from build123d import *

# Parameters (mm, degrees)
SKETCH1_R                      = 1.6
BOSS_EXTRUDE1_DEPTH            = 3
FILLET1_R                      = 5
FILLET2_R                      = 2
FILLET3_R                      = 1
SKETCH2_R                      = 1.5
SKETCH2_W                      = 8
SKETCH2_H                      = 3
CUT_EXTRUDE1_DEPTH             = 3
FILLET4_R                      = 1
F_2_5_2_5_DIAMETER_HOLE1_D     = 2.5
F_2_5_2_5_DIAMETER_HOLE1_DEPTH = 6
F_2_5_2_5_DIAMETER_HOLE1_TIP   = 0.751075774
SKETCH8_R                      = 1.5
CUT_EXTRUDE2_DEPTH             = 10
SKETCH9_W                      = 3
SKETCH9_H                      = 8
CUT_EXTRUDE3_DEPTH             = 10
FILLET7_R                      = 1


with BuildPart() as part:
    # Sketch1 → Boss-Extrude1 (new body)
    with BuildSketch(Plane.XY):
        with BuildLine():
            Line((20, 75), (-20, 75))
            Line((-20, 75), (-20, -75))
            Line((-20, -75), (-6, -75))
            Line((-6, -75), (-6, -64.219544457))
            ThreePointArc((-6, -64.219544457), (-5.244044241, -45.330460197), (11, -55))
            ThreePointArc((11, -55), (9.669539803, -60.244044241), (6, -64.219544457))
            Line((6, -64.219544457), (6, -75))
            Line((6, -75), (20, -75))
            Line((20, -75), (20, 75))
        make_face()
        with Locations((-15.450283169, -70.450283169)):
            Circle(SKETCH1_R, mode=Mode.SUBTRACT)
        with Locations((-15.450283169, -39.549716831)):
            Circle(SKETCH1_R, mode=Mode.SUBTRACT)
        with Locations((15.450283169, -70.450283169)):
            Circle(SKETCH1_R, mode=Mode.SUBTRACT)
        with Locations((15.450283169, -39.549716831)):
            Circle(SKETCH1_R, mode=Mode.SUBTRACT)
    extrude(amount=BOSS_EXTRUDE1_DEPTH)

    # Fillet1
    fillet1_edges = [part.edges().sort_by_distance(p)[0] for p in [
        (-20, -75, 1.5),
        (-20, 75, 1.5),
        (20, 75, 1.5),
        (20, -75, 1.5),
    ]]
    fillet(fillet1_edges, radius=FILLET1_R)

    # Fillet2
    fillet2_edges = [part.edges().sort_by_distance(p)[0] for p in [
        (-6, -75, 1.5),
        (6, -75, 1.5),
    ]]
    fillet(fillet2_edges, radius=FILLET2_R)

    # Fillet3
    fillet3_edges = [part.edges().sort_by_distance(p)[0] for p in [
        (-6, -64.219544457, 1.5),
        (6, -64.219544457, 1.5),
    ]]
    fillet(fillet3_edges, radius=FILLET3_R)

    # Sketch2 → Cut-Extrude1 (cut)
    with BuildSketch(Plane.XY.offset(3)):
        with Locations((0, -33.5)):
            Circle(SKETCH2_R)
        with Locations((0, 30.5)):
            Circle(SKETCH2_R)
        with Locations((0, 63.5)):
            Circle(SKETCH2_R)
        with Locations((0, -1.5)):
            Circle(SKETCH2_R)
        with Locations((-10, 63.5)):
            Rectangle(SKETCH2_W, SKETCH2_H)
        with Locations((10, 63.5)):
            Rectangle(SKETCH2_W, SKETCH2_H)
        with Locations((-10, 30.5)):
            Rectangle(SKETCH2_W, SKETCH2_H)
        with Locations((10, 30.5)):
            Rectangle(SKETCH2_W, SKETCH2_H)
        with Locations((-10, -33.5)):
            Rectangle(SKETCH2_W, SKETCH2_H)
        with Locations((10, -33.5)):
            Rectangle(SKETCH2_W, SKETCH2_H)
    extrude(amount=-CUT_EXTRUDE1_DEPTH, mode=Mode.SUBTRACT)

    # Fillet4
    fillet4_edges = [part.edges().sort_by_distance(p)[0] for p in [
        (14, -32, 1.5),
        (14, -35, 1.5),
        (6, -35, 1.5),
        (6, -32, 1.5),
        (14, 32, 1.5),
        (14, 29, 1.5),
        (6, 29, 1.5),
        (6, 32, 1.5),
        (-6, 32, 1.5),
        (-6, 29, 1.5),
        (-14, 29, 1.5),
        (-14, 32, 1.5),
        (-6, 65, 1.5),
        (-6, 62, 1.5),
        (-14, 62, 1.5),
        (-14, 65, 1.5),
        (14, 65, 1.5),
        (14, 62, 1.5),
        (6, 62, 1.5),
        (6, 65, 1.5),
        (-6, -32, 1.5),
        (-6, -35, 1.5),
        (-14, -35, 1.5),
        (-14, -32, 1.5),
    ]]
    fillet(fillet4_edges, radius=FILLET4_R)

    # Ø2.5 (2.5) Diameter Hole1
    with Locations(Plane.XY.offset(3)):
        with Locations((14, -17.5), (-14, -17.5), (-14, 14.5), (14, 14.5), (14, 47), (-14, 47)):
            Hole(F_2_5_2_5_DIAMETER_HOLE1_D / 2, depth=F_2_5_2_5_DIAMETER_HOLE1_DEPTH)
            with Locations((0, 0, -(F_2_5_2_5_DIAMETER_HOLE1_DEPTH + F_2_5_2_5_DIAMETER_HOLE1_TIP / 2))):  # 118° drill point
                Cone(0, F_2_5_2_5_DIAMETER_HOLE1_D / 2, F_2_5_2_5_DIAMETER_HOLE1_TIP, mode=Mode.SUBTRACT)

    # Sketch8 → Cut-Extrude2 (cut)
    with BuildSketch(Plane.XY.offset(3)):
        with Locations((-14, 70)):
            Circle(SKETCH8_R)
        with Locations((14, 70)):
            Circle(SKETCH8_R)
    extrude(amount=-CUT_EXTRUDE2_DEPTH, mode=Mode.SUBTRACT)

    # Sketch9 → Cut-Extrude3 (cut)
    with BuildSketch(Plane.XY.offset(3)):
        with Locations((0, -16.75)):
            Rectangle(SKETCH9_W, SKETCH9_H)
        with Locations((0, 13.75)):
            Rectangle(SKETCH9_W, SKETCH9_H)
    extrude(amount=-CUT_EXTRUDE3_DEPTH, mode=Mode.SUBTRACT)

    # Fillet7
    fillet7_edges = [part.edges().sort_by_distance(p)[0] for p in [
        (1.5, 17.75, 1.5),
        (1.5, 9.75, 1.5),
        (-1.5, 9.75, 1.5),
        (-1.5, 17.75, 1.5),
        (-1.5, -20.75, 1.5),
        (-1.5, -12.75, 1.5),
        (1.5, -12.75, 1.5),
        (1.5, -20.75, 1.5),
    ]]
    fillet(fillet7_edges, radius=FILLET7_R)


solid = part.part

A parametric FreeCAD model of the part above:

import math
import FreeCAD as App
import Part
import Sketcher

V = App.Vector
Q = App.Units.Quantity


def edges_at(feature, points):
    """Names of the edges that pass closest to the given points."""
    edges = feature.Shape.Edges
    near = lambda p: min(range(len(edges)), key=lambda i: edges[i].distToShape(Part.Vertex(*p))[0])
    return sorted({f"Edge{near(p) + 1}" for p in points})


def add_polygon(sketch, points):
    """Adds a closed chain of lines whose ends are joined by coincident constraints."""
    first, n = sketch.GeometryCount, len(points)
    for a, b in zip(points, points[1:] + points[:1]):
        sketch.addGeometry(Part.LineSegment(App.Vector(*a, 0), App.Vector(*b, 0)), False)
    for i in range(n):
        sketch.addConstraint(Sketcher.Constraint("Coincident", first + i, 2, first + (i + 1) % n, 1))

doc = App.newDocument("Part")
params = doc.addObject("Spreadsheet::Sheet", "Params")
for row, (alias, value) in enumerate([
    ("sketch1_radius", "11 mm"),
    ("sketch1_diameter", "3.2 mm"),
    ("sketch1_width", "40 mm"),
    ("sketch1_width2", "14 mm"),
    ("sketch1_height", "150 mm"),
    ("pad1_length", "3 mm"),
    ("fillet_radius", "5 mm"),
    ("fillet2_radius", "2 mm"),
    ("fillet3_radius", "1 mm"),
    ("sketch2_diameter", "3 mm"),
    ("sketch2_width", "8 mm"),
    ("sketch2_height", "3 mm"),
    ("pocket1_length", "3 mm"),
    ("fillet4_radius", "1 mm"),
    ("sketch3_diameter", "2.5 mm"),
    ("hole_diameter", "2.5 mm"),
    ("hole_depth", "6 mm"),
    ("sketch4_diameter", "3 mm"),
    ("pocket2_length", "10 mm"),
    ("sketch5_width", "3 mm"),
    ("sketch5_height", "8 mm"),
    ("pocket3_length", "10 mm"),
    ("fillet5_radius", "1 mm"),
], start=1):
    params.set(f"A{row}", alias)
    params.set(f"B{row}", "=" + value)
    params.setAlias(f"B{row}", alias)

body = doc.addObject("PartDesign::Body", "Body")

sketch1 = body.newObject("Sketcher::SketchObject", "Sketch")
sketch1.AttachmentSupport = (doc.getObject("XY_Plane"), [""])
sketch1.MapMode = "FlatFace"
sketch1.addGeometry(Part.LineSegment(V(20, 75, 0), V(-20, 75, 0)), False)
sketch1.addGeometry(Part.LineSegment(V(-20, 75, 0), V(-20, -75, 0)), False)
sketch1.addGeometry(Part.LineSegment(V(-20, -75, 0), V(-6, -75, 0)), False)
sketch1.addGeometry(Part.LineSegment(V(-6, -75, 0), V(-6, -64.2, 0)), False)
sketch1.addGeometry(Part.ArcOfCircle(Part.Circle(V(0, -55, 0), V(0, 0, 1), 11), math.radians(0), math.radians(237)), False)
sketch1.addGeometry(Part.ArcOfCircle(Part.Circle(V(0, -55, 0), V(0, 0, 1), 11), math.radians(-57), math.radians(0)), False)
sketch1.addGeometry(Part.LineSegment(V(6, -64.2, 0), V(6, -75, 0)), False)
sketch1.addGeometry(Part.LineSegment(V(6, -75, 0), V(20, -75, 0)), False)
sketch1.addGeometry(Part.LineSegment(V(20, -75, 0), V(20, 75, 0)), False)
sketch1.addGeometry(Part.Circle(V(-15.5, -70.5, 0), V(0, 0, 1), 1.6), False)
sketch1.addGeometry(Part.Circle(V(15.5, -70.5, 0), V(0, 0, 1), 1.6), False)
sketch1.addGeometry(Part.Circle(V(-15.5, -39.5, 0), V(0, 0, 1), 1.6), False)
sketch1.addGeometry(Part.Circle(V(15.5, -39.5, 0), V(0, 0, 1), 1.6), False)
sketch1.addConstraint(Sketcher.Constraint("Coincident", 0, 2, 1, 1))
sketch1.addConstraint(Sketcher.Constraint("Coincident", 1, 2, 2, 1))
sketch1.addConstraint(Sketcher.Constraint("Coincident", 2, 2, 3, 1))
sketch1.addConstraint(Sketcher.Constraint("Coincident", 3, 2, 4, 2))
sketch1.addConstraint(Sketcher.Constraint("Tangent", 4, 1, 5, 2))
sketch1.addConstraint(Sketcher.Constraint("Coincident", 5, 1, 6, 1))
sketch1.addConstraint(Sketcher.Constraint("Coincident", 6, 2, 7, 1))
sketch1.addConstraint(Sketcher.Constraint("Coincident", 7, 2, 8, 1))
sketch1.addConstraint(Sketcher.Constraint("Coincident", 8, 2, 0, 1))
sketch1.addConstraint(Sketcher.Constraint("Horizontal", 0))
sketch1.addConstraint(Sketcher.Constraint("Vertical", 1))
sketch1.addConstraint(Sketcher.Constraint("Horizontal", 2))
sketch1.addConstraint(Sketcher.Constraint("Vertical", 3))
sketch1.addConstraint(Sketcher.Constraint("Vertical", 6))
sketch1.addConstraint(Sketcher.Constraint("Horizontal", 7))
sketch1.addConstraint(Sketcher.Constraint("Vertical", 8))
sketch1.addConstraint(Sketcher.Constraint("Equal", 4, 5))
sketch1.addConstraint(Sketcher.Constraint("Equal", 9, 10))
sketch1.addConstraint(Sketcher.Constraint("Equal", 10, 11))
sketch1.addConstraint(Sketcher.Constraint("Equal", 11, 12))
sketch1.addConstraint(Sketcher.Constraint("Symmetric", 0, 2, 7, 2, -1, 1))
sketch1.addConstraint(Sketcher.Constraint("Symmetric", 9, 3, 10, 3, -2))
sketch1.addConstraint(Sketcher.Constraint("Symmetric", 11, 3, 12, 3, -2))
sketch1.addConstraint(Sketcher.Constraint("Symmetric", 3, 2, 5, 1, -2))
sketch1.addConstraint(Sketcher.Constraint("Horizontal", 5, 3, 4, 1))
sketch1.addConstraint(Sketcher.Constraint("Horizontal", 2, 2, 6, 2))
sketch1.addConstraint(Sketcher.Constraint("Vertical", 9, 3, 11, 3))
sketch1.addConstraint(Sketcher.Constraint("Radius", 4, Q("11 mm")))
sketch1.addConstraint(Sketcher.Constraint("Diameter", 9, Q("3.2 mm")))
sketch1.addConstraint(Sketcher.Constraint("DistanceX", 0, 2, 0, 1, Q("40 mm")))
sketch1.addConstraint(Sketcher.Constraint("DistanceX", 2, 1, 2, 2, Q("14 mm")))
sketch1.addConstraint(Sketcher.Constraint("DistanceY", 1, 2, 1, 1, Q("150 mm")))
sketch1.addConstraint(Sketcher.Constraint("DistanceY", 4, 3, -1, 1, Q("55 mm")))
sketch1.addConstraint(Sketcher.Constraint("DistanceY", 9, 3, 3, 2, Q("6.230739 mm")))
sketch1.addConstraint(Sketcher.Constraint("DistanceX", 9, 3, -1, 1, Q("15.450283 mm")))
sketch1.addConstraint(Sketcher.Constraint("DistanceY", 11, 3, -1, 1, Q("39.549717 mm")))
sketch1.setExpression("Constraints[27]", "Params.sketch1_radius")
sketch1.setExpression("Constraints[28]", "Params.sketch1_diameter")
sketch1.setExpression("Constraints[29]", "Params.sketch1_width")
sketch1.setExpression("Constraints[30]", "Params.sketch1_width2")
sketch1.setExpression("Constraints[31]", "Params.sketch1_height")
pad1 = body.newObject("PartDesign::Pad", "Pad")
pad1.Profile = sketch1
pad1.setExpression("Length", "Params.pad1_length")
doc.recompute()

fillet = body.newObject("PartDesign::Fillet", "Fillet")
fillet.Base = (pad1, edges_at(pad1, [
    (-20, -75, 1.5),
    (-20, 75, 1.5),
    (20, 75, 1.5),
    (20, -75, 1.5),
]))
fillet.setExpression("Radius", "Params.fillet_radius")
doc.recompute()

fillet2 = body.newObject("PartDesign::Fillet", "Fillet001")
fillet2.Base = (fillet, edges_at(fillet, [(-6, -75, 1.5), (6, -75, 1.5)]))
fillet2.setExpression("Radius", "Params.fillet2_radius")
doc.recompute()

fillet3 = body.newObject("PartDesign::Fillet", "Fillet002")
fillet3.Base = (fillet2, edges_at(fillet2, [(-6, -64.22, 1.5), (6, -64.22, 1.5)]))
fillet3.setExpression("Radius", "Params.fillet3_radius")

sketch2 = body.newObject("Sketcher::SketchObject", "Sketch001")
sketch2.AttachmentSupport = (doc.getObject("XY_Plane"), [""])
sketch2.MapMode = "FlatFace"
sketch2.AttachmentOffset = App.Placement(V(0, 0, 3), App.Rotation())
sketch2.addGeometry(Part.Circle(V(0, -33.5, 0), V(0, 0, 1), 1.5), False)
sketch2.addGeometry(Part.Circle(V(0, 30.5, 0), V(0, 0, 1), 1.5), False)
sketch2.addGeometry(Part.Circle(V(0, 63.5, 0), V(0, 0, 1), 1.5), False)
sketch2.addGeometry(Part.Circle(V(0, -1.5, 0), V(0, 0, 1), 1.5), False)
add_polygon(sketch2, [(-14, 65), (-14, 62), (-6, 62), (-6, 65)])
add_polygon(sketch2, [(6, 65), (6, 62), (14, 62), (14, 65)])
add_polygon(sketch2, [(-14, 32), (-14, 29), (-6, 29), (-6, 32)])
add_polygon(sketch2, [(6, 32), (6, 29), (14, 29), (14, 32)])
add_polygon(sketch2, [(-14, -32), (-14, -35), (-6, -35), (-6, -32)])
add_polygon(sketch2, [(6, -32), (6, -35), (14, -35), (14, -32)])
sketch2.addConstraint(Sketcher.Constraint("Vertical", 4))
sketch2.addConstraint(Sketcher.Constraint("Horizontal", 5))
sketch2.addConstraint(Sketcher.Constraint("Vertical", 6))
sketch2.addConstraint(Sketcher.Constraint("Horizontal", 7))
sketch2.addConstraint(Sketcher.Constraint("Vertical", 8))
sketch2.addConstraint(Sketcher.Constraint("Horizontal", 9))
sketch2.addConstraint(Sketcher.Constraint("Vertical", 10))
sketch2.addConstraint(Sketcher.Constraint("Horizontal", 11))
sketch2.addConstraint(Sketcher.Constraint("Vertical", 12))
sketch2.addConstraint(Sketcher.Constraint("Horizontal", 13))
sketch2.addConstraint(Sketcher.Constraint("Vertical", 14))
sketch2.addConstraint(Sketcher.Constraint("Horizontal", 15))
sketch2.addConstraint(Sketcher.Constraint("Vertical", 16))
sketch2.addConstraint(Sketcher.Constraint("Horizontal", 17))
sketch2.addConstraint(Sketcher.Constraint("Vertical", 18))
sketch2.addConstraint(Sketcher.Constraint("Horizontal", 19))
sketch2.addConstraint(Sketcher.Constraint("Vertical", 20))
sketch2.addConstraint(Sketcher.Constraint("Horizontal", 21))
sketch2.addConstraint(Sketcher.Constraint("Vertical", 22))
sketch2.addConstraint(Sketcher.Constraint("Horizontal", 23))
sketch2.addConstraint(Sketcher.Constraint("Vertical", 24))
sketch2.addConstraint(Sketcher.Constraint("Horizontal", 25))
sketch2.addConstraint(Sketcher.Constraint("Vertical", 26))
sketch2.addConstraint(Sketcher.Constraint("Horizontal", 27))
sketch2.addConstraint(Sketcher.Constraint("Equal", 0, 1))
sketch2.addConstraint(Sketcher.Constraint("Equal", 1, 2))
sketch2.addConstraint(Sketcher.Constraint("Equal", 2, 3))
sketch2.addConstraint(Sketcher.Constraint("Symmetric", 19, 2, 22, 2, -1, 1))
sketch2.addConstraint(Sketcher.Constraint("Symmetric", 15, 2, 26, 2, -1, 1))
sketch2.addConstraint(Sketcher.Constraint("Symmetric", 5, 2, 8, 2, -2))
sketch2.addConstraint(Sketcher.Constraint("Symmetric", 7, 2, 10, 2, -2))
sketch2.addConstraint(Sketcher.Constraint("Symmetric", 13, 2, 16, 2, -2))
sketch2.addConstraint(Sketcher.Constraint("Symmetric", 15, 2, 18, 2, -2))
sketch2.addConstraint(Sketcher.Constraint("Symmetric", 21, 2, 24, 2, -2))
sketch2.addConstraint(Sketcher.Constraint("PointOnObject", 0, 3, -2))
sketch2.addConstraint(Sketcher.Constraint("PointOnObject", 1, 3, -2))
sketch2.addConstraint(Sketcher.Constraint("PointOnObject", 2, 3, -2))
sketch2.addConstraint(Sketcher.Constraint("PointOnObject", 3, 3, -2))
sketch2.addConstraint(Sketcher.Constraint("Vertical", 7, 2, 12, 2))
sketch2.addConstraint(Sketcher.Constraint("Vertical", 6, 2, 13, 2))
sketch2.addConstraint(Sketcher.Constraint("Vertical", 15, 2, 20, 2))
sketch2.addConstraint(Sketcher.Constraint("Equal", 10, 12))
sketch2.addConstraint(Sketcher.Constraint("Equal", 18, 20))
sketch2.addConstraint(Sketcher.Constraint("Diameter", 0, Q("3 mm")))
sketch2.addConstraint(Sketcher.Constraint("DistanceX", 5, 1, 5, 2, Q("8 mm")))
sketch2.addConstraint(Sketcher.Constraint("DistanceY", 4, 2, 4, 1, Q("3 mm")))
sketch2.addConstraint(Sketcher.Constraint("DistanceX", 4, 2, -1, 1, Q("14 mm")))
sketch2.addConstraint(Sketcher.Constraint("DistanceY", -1, 1, 4, 2, Q("62 mm")))
sketch2.addConstraint(Sketcher.Constraint("DistanceY", -1, 1, 12, 2, Q("29 mm")))
sketch2.addConstraint(Sketcher.Constraint("DistanceY", 0, 3, 1, 3, Q("64 mm")))
sketch2.addConstraint(Sketcher.Constraint("DistanceY", 1, 3, 2, 3, Q("33 mm")))
sketch2.addConstraint(Sketcher.Constraint("DistanceY", 0, 3, 3, 3, Q("32 mm")))
sketch2.addConstraint(Sketcher.Constraint("DistanceY", 0, 3, -1, 1, Q("33.5 mm")))
sketch2.setExpression("Constraints[67]", "Params.sketch2_diameter")
sketch2.setExpression("Constraints[68]", "Params.sketch2_width")
sketch2.setExpression("Constraints[69]", "Params.sketch2_height")
pocket1 = body.newObject("PartDesign::Pocket", "Pocket")
pocket1.Profile = sketch2
pocket1.setExpression("Length", "Params.pocket1_length")
doc.recompute()

fillet4 = body.newObject("PartDesign::Fillet", "Fillet003")
fillet4.Base = (pocket1, edges_at(pocket1, [
    (14, -32, 1.5),
    (14, -35, 1.5),
    (6, -35, 1.5),
    (6, -32, 1.5),
    (14, 32, 1.5),
    (14, 29, 1.5),
    (6, 29, 1.5),
    (6, 32, 1.5),
    (-6, 32, 1.5),
    (-6, 29, 1.5),
    (-14, 29, 1.5),
    (-14, 32, 1.5),
    (-6, 65, 1.5),
    (-6, 62, 1.5),
    (-14, 62, 1.5),
    (-14, 65, 1.5),
    (14, 65, 1.5),
    (14, 62, 1.5),
    (6, 62, 1.5),
    (6, 65, 1.5),
    (-6, -32, 1.5),
    (-6, -35, 1.5),
    (-14, -35, 1.5),
    (-14, -32, 1.5),
]))
fillet4.setExpression("Radius", "Params.fillet4_radius")

sketch3 = body.newObject("Sketcher::SketchObject", "Sketch002")
sketch3.AttachmentSupport = (doc.getObject("XY_Plane"), [""])
sketch3.MapMode = "FlatFace"
sketch3.AttachmentOffset = App.Placement(V(0, 0, 3), App.Rotation())
sketch3.addGeometry(Part.Circle(V(14, -17.5, 0), V(0, 0, 1), 1.2), False)
sketch3.addGeometry(Part.Circle(V(-14, -17.5, 0), V(0, 0, 1), 1.2), False)
sketch3.addGeometry(Part.Circle(V(-14, 14.5, 0), V(0, 0, 1), 1.2), False)
sketch3.addGeometry(Part.Circle(V(14, 14.5, 0), V(0, 0, 1), 1.2), False)
sketch3.addGeometry(Part.Circle(V(14, 47, 0), V(0, 0, 1), 1.2), False)
sketch3.addGeometry(Part.Circle(V(-14, 47, 0), V(0, 0, 1), 1.2), False)
sketch3.addConstraint(Sketcher.Constraint("Equal", 0, 1))
sketch3.addConstraint(Sketcher.Constraint("Equal", 1, 2))
sketch3.addConstraint(Sketcher.Constraint("Equal", 2, 3))
sketch3.addConstraint(Sketcher.Constraint("Equal", 3, 4))
sketch3.addConstraint(Sketcher.Constraint("Equal", 4, 5))
sketch3.addConstraint(Sketcher.Constraint("Symmetric", 0, 3, 1, 3, -2))
sketch3.addConstraint(Sketcher.Constraint("Symmetric", 2, 3, 3, 3, -2))
sketch3.addConstraint(Sketcher.Constraint("Symmetric", 4, 3, 5, 3, -2))
sketch3.addConstraint(Sketcher.Constraint("Vertical", 1, 3, 2, 3))
sketch3.addConstraint(Sketcher.Constraint("Vertical", 3, 3, 4, 3))
sketch3.addConstraint(Sketcher.Constraint("Diameter", 0, Q("2.5 mm")))
sketch3.addConstraint(Sketcher.Constraint("DistanceX", -1, 1, 0, 3, Q("14 mm")))
sketch3.addConstraint(Sketcher.Constraint("DistanceY", -1, 1, 4, 3, Q("47 mm")))
sketch3.addConstraint(Sketcher.Constraint("DistanceY", 1, 3, 2, 3, Q("32 mm")))
sketch3.addConstraint(Sketcher.Constraint("DistanceY", 0, 3, -1, 1, Q("17.5 mm")))
sketch3.setExpression("Constraints[10]", "Params.sketch3_diameter")
doc.recompute()
hole = body.newObject("PartDesign::Hole", "Hole")
hole.Profile = sketch3
hole.ThreadType = "None"
hole.setExpression("Diameter", "Params.hole_diameter")
hole.DepthType = "Dimension"
hole.setExpression("Depth", "Params.hole_depth")
hole.DrillPoint = "Angled"
hole.DrillPointAngle = 118

sketch4 = body.newObject("Sketcher::SketchObject", "Sketch003")
sketch4.AttachmentSupport = (doc.getObject("XY_Plane"), [""])
sketch4.MapMode = "FlatFace"
sketch4.AttachmentOffset = App.Placement(V(0, 0, 3), App.Rotation())
sketch4.addGeometry(Part.Circle(V(-14, 70, 0), V(0, 0, 1), 1.5), False)
sketch4.addGeometry(Part.Circle(V(14, 70, 0), V(0, 0, 1), 1.5), False)
sketch4.addConstraint(Sketcher.Constraint("Equal", 0, 1))
sketch4.addConstraint(Sketcher.Constraint("Symmetric", 0, 3, 1, 3, -2))
sketch4.addConstraint(Sketcher.Constraint("Diameter", 0, Q("3 mm")))
sketch4.addConstraint(Sketcher.Constraint("DistanceX", 0, 3, -1, 1, Q("14 mm")))
sketch4.addConstraint(Sketcher.Constraint("DistanceY", -1, 1, 0, 3, Q("70 mm")))
sketch4.setExpression("Constraints[2]", "Params.sketch4_diameter")
pocket2 = body.newObject("PartDesign::Pocket", "Pocket001")
pocket2.Profile = sketch4
pocket2.setExpression("Length", "Params.pocket2_length")

sketch5 = body.newObject("Sketcher::SketchObject", "Sketch004")
sketch5.AttachmentSupport = (doc.getObject("XY_Plane"), [""])
sketch5.MapMode = "FlatFace"
sketch5.AttachmentOffset = App.Placement(V(0, 0, 3), App.Rotation())
add_polygon(sketch5, [(-1.5, -12.8), (-1.5, -20.8), (1.5, -20.8), (1.5, -12.8)])
add_polygon(sketch5, [(-1.5, 17.8), (-1.5, 9.8), (1.5, 9.8), (1.5, 17.8)])
sketch5.addConstraint(Sketcher.Constraint("Vertical", 0))
sketch5.addConstraint(Sketcher.Constraint("Horizontal", 1))
sketch5.addConstraint(Sketcher.Constraint("Vertical", 2))
sketch5.addConstraint(Sketcher.Constraint("Horizontal", 3))
sketch5.addConstraint(Sketcher.Constraint("Vertical", 4))
sketch5.addConstraint(Sketcher.Constraint("Horizontal", 5))
sketch5.addConstraint(Sketcher.Constraint("Vertical", 6))
sketch5.addConstraint(Sketcher.Constraint("Horizontal", 7))
sketch5.addConstraint(Sketcher.Constraint("Vertical", 3, 2, 4, 2))
sketch5.addConstraint(Sketcher.Constraint("Vertical", 2, 2, 5, 2))
sketch5.addConstraint(Sketcher.Constraint("Equal", 2, 4))
sketch5.addConstraint(Sketcher.Constraint("DistanceX", 1, 1, 1, 2, Q("3 mm")))
sketch5.addConstraint(Sketcher.Constraint("DistanceY", 0, 2, 0, 1, Q("8 mm")))
sketch5.addConstraint(Sketcher.Constraint("DistanceX", 0, 2, -1, 1, Q("1.5 mm")))
sketch5.addConstraint(Sketcher.Constraint("DistanceY", 3, 2, 4, 2, Q("22.5 mm")))
sketch5.addConstraint(Sketcher.Constraint("DistanceY", 0, 2, -1, 1, Q("20.75 mm")))
sketch5.setExpression("Constraints[19]", "Params.sketch5_width")
sketch5.setExpression("Constraints[20]", "Params.sketch5_height")
pocket3 = body.newObject("PartDesign::Pocket", "Pocket002")
pocket3.Profile = sketch5
pocket3.setExpression("Length", "Params.pocket3_length")
doc.recompute()

fillet5 = body.newObject("PartDesign::Fillet", "Fillet004")
fillet5.Base = (pocket3, edges_at(pocket3, [
    (1.5, 17.75, 1.5),
    (1.5, 9.75, 1.5),
    (-1.5, 9.75, 1.5),
    (-1.5, 17.75, 1.5),
    (-1.5, -20.75, 1.5),
    (-1.5, -12.75, 1.5),
    (1.5, -12.75, 1.5),
    (1.5, -20.75, 1.5),
]))
fillet5.setExpression("Radius", "Params.fillet5_radius")

doc.recompute()
